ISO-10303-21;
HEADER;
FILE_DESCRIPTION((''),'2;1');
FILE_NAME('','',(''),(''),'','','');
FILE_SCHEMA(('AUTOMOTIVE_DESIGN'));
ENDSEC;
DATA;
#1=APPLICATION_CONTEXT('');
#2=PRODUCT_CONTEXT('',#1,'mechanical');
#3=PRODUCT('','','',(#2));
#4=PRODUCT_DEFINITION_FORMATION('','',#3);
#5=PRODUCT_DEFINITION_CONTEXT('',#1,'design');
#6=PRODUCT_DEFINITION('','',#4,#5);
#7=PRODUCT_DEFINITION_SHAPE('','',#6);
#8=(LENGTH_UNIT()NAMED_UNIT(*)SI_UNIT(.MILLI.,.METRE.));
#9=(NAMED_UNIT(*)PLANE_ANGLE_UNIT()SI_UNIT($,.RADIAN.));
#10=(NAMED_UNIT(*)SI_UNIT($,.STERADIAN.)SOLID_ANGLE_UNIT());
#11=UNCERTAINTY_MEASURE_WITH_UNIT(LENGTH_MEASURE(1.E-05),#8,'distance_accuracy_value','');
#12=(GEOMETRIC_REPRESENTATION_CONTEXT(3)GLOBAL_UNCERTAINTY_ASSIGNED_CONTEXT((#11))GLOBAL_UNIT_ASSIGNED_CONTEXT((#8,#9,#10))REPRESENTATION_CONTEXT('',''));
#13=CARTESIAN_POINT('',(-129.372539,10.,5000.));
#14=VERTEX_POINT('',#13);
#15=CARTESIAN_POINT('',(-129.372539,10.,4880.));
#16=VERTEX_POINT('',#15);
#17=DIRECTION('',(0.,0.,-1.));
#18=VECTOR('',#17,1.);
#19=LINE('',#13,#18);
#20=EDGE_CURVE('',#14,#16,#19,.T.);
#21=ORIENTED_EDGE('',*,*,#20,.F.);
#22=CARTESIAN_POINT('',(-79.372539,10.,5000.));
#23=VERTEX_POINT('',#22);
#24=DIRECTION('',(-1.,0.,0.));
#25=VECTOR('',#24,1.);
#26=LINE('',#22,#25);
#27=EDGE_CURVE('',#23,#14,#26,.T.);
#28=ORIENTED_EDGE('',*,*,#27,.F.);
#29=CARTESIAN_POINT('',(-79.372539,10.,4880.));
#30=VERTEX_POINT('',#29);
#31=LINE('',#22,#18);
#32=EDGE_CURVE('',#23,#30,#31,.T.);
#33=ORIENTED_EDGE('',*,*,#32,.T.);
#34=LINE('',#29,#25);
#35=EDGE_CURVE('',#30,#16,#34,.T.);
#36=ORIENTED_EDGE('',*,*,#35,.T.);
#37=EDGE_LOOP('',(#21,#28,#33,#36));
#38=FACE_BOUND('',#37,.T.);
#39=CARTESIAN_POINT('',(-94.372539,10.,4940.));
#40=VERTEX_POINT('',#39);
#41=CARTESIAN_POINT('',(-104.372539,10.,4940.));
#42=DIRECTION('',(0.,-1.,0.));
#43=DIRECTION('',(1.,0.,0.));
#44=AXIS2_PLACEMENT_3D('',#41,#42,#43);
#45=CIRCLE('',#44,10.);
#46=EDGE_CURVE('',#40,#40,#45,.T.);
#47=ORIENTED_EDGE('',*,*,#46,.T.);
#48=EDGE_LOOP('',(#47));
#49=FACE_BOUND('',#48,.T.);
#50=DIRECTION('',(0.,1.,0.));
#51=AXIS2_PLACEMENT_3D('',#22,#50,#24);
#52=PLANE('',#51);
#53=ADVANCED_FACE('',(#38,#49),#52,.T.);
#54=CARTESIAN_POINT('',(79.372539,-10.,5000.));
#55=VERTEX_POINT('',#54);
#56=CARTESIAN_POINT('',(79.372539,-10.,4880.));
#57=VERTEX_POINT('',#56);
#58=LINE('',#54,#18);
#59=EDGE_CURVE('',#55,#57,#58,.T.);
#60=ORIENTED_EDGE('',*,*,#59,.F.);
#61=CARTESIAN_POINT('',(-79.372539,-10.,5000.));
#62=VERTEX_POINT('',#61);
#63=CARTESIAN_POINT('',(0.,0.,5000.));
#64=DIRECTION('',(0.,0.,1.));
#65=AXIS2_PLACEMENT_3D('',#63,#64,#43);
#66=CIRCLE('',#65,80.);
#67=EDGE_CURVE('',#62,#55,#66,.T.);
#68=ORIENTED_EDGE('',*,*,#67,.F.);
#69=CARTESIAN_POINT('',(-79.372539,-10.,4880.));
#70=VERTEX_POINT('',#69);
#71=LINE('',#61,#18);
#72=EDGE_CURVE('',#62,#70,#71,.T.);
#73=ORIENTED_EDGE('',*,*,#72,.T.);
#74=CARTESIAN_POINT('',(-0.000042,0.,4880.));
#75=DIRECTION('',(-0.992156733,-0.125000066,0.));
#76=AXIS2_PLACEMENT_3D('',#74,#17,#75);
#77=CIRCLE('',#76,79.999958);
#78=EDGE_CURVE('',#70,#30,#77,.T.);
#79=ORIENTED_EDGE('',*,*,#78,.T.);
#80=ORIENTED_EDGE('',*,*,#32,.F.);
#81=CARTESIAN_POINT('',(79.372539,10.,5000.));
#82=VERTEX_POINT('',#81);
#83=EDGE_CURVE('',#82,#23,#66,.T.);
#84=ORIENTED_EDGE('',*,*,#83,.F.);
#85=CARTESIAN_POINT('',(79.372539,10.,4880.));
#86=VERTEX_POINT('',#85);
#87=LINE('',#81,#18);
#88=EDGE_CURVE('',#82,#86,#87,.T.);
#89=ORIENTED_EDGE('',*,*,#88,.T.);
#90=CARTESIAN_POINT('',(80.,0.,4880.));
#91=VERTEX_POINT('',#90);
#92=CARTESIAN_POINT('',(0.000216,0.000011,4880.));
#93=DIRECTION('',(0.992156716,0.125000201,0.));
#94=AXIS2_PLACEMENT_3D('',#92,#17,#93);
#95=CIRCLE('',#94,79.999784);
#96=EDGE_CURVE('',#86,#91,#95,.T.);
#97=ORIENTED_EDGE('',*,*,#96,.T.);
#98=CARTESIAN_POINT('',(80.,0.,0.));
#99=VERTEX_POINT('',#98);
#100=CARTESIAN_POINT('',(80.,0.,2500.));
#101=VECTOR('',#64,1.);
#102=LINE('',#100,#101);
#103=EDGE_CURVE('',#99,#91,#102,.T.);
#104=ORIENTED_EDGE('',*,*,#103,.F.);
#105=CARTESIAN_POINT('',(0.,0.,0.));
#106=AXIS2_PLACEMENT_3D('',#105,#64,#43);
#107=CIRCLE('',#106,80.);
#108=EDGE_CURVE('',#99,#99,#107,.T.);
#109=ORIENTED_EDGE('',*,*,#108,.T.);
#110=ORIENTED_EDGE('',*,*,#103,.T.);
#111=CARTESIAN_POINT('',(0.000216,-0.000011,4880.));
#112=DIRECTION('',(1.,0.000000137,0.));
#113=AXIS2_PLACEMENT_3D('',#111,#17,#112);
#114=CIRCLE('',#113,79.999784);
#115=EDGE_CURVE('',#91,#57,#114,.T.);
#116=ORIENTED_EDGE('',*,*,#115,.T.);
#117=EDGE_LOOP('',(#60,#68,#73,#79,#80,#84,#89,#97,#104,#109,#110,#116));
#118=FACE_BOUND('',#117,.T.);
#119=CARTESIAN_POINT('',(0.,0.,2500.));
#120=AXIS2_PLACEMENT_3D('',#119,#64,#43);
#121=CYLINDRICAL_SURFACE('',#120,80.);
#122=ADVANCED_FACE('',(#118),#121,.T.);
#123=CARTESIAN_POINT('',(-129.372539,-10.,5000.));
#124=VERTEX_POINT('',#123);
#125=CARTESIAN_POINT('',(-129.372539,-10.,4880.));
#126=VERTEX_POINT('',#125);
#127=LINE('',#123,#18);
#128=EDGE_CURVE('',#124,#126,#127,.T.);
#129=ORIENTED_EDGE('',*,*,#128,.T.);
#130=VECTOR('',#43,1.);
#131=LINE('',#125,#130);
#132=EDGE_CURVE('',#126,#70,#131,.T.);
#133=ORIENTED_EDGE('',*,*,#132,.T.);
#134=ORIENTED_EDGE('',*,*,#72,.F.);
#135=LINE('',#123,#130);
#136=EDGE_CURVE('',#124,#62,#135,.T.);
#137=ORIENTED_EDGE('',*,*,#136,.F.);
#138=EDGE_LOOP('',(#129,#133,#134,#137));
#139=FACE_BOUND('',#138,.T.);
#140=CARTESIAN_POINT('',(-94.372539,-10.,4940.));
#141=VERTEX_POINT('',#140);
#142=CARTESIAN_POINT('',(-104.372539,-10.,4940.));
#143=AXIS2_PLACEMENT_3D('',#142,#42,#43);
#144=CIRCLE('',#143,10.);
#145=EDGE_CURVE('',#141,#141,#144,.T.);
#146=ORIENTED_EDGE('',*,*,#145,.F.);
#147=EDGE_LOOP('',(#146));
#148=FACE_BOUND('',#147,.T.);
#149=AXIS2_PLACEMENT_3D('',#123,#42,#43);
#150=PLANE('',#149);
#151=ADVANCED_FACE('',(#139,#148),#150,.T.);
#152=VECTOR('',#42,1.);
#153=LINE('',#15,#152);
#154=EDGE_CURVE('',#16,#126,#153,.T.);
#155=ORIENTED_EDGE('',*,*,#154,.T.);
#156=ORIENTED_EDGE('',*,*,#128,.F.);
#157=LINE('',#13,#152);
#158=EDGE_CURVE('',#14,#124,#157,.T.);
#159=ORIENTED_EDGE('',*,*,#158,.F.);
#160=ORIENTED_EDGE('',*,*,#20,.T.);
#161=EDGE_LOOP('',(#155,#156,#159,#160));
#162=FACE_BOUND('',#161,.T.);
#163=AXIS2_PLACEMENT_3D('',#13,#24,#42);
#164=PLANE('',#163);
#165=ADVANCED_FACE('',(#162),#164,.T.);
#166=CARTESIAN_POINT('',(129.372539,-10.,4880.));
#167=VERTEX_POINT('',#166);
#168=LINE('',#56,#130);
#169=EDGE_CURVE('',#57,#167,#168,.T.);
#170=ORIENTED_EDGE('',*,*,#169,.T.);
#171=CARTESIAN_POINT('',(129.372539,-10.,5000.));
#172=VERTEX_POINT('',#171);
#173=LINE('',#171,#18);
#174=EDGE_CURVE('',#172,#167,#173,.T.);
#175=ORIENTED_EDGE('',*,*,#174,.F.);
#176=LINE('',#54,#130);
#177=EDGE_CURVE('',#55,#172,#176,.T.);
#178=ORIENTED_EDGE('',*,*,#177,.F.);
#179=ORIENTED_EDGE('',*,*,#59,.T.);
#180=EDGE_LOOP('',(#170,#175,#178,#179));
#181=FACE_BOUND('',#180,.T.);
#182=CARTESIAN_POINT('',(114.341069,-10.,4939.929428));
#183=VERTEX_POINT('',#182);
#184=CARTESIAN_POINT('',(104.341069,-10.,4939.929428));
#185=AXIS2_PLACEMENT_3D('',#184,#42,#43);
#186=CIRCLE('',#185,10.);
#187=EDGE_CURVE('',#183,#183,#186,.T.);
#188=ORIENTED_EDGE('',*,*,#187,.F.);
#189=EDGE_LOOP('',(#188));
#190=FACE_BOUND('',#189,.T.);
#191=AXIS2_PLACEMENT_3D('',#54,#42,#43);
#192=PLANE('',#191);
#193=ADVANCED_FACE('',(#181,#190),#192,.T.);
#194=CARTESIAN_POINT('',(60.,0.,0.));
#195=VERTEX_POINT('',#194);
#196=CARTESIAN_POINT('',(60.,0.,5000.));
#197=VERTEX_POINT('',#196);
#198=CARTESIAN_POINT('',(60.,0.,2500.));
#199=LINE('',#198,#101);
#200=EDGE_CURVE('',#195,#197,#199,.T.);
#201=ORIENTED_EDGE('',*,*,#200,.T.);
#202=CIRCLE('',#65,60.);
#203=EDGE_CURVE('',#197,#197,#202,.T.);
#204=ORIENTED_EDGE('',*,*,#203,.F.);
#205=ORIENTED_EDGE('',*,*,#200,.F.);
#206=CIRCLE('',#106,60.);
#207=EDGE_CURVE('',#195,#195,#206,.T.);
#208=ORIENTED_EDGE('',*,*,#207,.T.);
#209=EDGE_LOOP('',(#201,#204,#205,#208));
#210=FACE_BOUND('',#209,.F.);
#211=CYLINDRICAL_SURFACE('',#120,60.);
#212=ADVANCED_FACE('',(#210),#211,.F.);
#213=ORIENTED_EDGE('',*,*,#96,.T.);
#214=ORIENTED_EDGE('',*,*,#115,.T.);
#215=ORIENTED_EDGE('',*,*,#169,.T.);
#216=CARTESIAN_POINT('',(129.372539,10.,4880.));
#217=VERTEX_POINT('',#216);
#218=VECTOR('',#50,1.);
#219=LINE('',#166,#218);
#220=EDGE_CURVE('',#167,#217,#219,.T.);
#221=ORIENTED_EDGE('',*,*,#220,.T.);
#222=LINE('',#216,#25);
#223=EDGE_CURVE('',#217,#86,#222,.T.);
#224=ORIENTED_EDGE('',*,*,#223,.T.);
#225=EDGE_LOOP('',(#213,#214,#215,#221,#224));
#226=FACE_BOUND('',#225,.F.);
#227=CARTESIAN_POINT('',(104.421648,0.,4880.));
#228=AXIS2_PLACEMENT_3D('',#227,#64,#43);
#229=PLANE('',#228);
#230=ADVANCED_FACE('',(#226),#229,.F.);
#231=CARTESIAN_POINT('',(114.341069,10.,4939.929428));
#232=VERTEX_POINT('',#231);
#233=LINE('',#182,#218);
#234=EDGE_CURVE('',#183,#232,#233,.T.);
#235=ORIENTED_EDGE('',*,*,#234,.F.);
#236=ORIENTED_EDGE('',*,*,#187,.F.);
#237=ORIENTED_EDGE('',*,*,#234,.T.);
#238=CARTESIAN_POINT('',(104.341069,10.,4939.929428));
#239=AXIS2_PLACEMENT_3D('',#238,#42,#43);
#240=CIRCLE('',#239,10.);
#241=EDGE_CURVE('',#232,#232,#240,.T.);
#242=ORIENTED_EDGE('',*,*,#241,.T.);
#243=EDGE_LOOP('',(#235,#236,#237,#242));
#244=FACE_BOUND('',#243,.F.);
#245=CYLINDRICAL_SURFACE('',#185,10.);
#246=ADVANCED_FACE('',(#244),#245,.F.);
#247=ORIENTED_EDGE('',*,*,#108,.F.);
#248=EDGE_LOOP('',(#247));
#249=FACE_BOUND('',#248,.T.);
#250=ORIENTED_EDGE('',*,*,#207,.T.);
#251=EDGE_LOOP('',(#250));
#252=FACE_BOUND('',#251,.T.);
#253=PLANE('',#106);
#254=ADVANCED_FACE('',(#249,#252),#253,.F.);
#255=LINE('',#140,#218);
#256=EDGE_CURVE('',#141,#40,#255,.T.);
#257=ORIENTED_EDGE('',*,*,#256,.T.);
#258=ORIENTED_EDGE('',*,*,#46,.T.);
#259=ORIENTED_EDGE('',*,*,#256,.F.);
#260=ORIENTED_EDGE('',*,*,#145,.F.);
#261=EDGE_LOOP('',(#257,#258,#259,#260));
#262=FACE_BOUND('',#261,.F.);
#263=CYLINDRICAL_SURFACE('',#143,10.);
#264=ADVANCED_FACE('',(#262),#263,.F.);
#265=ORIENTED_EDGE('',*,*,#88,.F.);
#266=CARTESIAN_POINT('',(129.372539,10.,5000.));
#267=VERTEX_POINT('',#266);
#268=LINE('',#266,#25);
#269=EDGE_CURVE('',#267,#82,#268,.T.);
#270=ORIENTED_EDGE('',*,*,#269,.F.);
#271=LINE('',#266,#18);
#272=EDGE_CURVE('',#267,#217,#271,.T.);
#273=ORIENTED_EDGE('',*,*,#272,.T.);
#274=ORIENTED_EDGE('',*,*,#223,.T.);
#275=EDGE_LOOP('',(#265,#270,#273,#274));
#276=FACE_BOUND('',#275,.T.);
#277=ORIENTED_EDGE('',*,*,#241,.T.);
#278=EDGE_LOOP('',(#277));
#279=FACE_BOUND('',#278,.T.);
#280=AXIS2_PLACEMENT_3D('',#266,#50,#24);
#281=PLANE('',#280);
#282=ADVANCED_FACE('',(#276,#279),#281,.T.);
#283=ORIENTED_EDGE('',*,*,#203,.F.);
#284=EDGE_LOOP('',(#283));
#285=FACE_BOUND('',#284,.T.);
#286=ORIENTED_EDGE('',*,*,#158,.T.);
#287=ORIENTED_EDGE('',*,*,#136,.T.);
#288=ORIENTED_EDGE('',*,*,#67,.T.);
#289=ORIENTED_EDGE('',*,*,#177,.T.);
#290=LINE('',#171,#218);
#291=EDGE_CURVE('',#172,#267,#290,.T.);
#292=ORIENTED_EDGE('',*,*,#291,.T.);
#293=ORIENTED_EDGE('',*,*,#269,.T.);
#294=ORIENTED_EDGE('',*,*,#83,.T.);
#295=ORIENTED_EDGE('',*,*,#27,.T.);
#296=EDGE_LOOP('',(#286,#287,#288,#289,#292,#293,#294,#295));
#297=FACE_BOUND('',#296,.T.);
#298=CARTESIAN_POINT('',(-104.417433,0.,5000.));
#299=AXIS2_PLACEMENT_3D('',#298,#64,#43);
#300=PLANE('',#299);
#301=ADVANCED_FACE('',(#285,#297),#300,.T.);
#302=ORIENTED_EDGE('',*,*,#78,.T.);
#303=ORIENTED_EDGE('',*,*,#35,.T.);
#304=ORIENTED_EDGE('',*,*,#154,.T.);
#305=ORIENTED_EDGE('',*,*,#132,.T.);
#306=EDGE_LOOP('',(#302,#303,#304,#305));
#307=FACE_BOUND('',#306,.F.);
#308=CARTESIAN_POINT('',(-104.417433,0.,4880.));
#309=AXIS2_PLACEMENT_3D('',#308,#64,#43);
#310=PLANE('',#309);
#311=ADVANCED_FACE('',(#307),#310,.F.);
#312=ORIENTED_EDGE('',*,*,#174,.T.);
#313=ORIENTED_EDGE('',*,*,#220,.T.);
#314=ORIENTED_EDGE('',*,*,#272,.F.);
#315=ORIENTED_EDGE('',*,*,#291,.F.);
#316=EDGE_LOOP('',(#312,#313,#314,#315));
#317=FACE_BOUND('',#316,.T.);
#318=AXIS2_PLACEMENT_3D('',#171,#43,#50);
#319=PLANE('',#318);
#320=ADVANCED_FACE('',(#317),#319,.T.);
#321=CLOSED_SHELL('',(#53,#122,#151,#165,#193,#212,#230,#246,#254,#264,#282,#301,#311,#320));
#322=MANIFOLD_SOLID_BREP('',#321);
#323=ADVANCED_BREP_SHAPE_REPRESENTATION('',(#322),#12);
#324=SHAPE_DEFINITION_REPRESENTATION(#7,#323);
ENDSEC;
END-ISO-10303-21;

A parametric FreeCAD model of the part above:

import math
import FreeCAD as App
import Part
import Sketcher

V = App.Vector
Q = App.Units.Quantity

doc = App.newDocument("Part")
body = doc.addObject("PartDesign::Body", "Body")

# Sketch on XZ plane
sketch1 = body.newObject("Sketcher::SketchObject", "Sketch")
sketch1.AttachmentSupport = (doc.getObject("XZ_Plane"), [""])
sketch1.MapMode = "FlatFace"
sketch1.addGeometry([
    Part.LineSegment(V(60, 5000, 0), V(60, 0, 0)),
    Part.LineSegment(V(60, 0, 0), V(80, 0, 0)),
    Part.LineSegment(V(80, 0, 0), V(80, 5000, 0)),
    Part.LineSegment(V(80, 5000, 0), V(60, 5000, 0)),
], False)
sketch1.addConstraint([
    Sketcher.Constraint("Coincident", 0, 2, 1, 1),
    Sketcher.Constraint("Coincident", 1, 2, 2, 1),
    Sketcher.Constraint("Coincident", 2, 2, 3, 1),
    Sketcher.Constraint("Coincident", 3, 2, 0, 1),
    Sketcher.Constraint("Vertical", 0),
    Sketcher.Constraint("Horizontal", 1),
    Sketcher.Constraint("Vertical", 2),
    Sketcher.Constraint("Horizontal", 3),
    Sketcher.Constraint("PointOnObject", 0, 2, -1),
    Sketcher.Constraint("DistanceX", 1, 1, 1, 2, Q("20 mm")),
    Sketcher.Constraint("DistanceY", 0, 2, 0, 1, Q("5000 mm")),
    Sketcher.Constraint("DistanceX", -1, 1, 0, 2, Q("60 mm")),
])
revolution = body.newObject("PartDesign::Revolution", "Revolution")
revolution.Profile = sketch1
revolution.ReferenceAxis = (sketch1, ["V_Axis"])
revolution.Angle = 360

# Sketch on XY plane
sketch2 = body.newObject("Sketcher::SketchObject", "Sketch001")
sketch2.AttachmentSupport = (doc.getObject("XY_Plane"), [""])
sketch2.MapMode = "FlatFace"
sketch2.AttachmentOffset = App.Placement(V(0, 0, 5000), App.Rotation())
sketch2.addGeometry([
    Part.ArcOfCircle(Part.Circle(V(-0.000042, 0, 0), V(0, 0, 1), 79.999958), math.radians(172.81924), math.radians(187.18076)),  # 0
    Part.LineSegment(V(-79.372539, 10, 0), V(-129.372539, 10, 0)),  # 1
    Part.LineSegment(V(-129.372539, 10, 0), V(-129.372539, -10, 0)),  # 2
    Part.LineSegment(V(-129.372539, -10, 0), V(-79.372539, -10, 0)),  # 3
    Part.LineSegment(V(129.372539, 10, 0), V(79.372539, 10, 0)),  # 4
    Part.ArcOfCircle(Part.Circle(V(0.000216, 0.000011, 0), V(0, 0, 1), 79.999784), math.radians(-0.000008), math.radians(7.180767)),  # 5
    Part.ArcOfCircle(Part.Circle(V(0.000216, -0.000011, 0), V(0, 0, 1), 79.999784), math.radians(-7.180767), math.radians(0.000008)),  # 6
    Part.LineSegment(V(79.372539, -10, 0), V(129.372539, -10, 0)),  # 7
    Part.LineSegment(V(129.372539, -10, 0), V(129.372539, 10, 0)),  # 8
], False)
sketch2.addConstraint([
    Sketcher.Constraint("Coincident", 0, 1, 1, 1),
    Sketcher.Constraint("Coincident", 1, 2, 2, 1),
    Sketcher.Constraint("Coincident", 2, 2, 3, 1),
    Sketcher.Constraint("Coincident", 3, 2, 0, 2),
    Sketcher.Constraint("Coincident", 4, 2, 5, 2),
    Sketcher.Constraint("Tangent", 5, 1, 6, 2),
    Sketcher.Constraint("Coincident", 6, 1, 7, 1),
    Sketcher.Constraint("Coincident", 7, 2, 8, 1),
    Sketcher.Constraint("Coincident", 8, 2, 4, 1),
    Sketcher.Constraint("Horizontal", 1),
    Sketcher.Constraint("Vertical", 2),
    Sketcher.Constraint("Horizontal", 3),
    Sketcher.Constraint("Horizontal", 4),
    Sketcher.Constraint("Horizontal", 7),
    Sketcher.Constraint("Vertical", 8),
    Sketcher.Constraint("Equal", 5, 6),
    Sketcher.Constraint("Symmetric", 3, 2, 4, 2, -1, 1),
    Sketcher.Constraint("Symmetric", 0, 1, 6, 1, -1, 1),
    Sketcher.Constraint("Symmetric", 0, 1, 4, 2, -2),
    Sketcher.Constraint("PointOnObject", 5, 1, -1),
    Sketcher.Constraint("Equal", 3, 4),
    Sketcher.Constraint("DistanceX", 1, 2, 1, 1, Q("50 mm")),
    Sketcher.Constraint("DistanceY", 2, 2, 2, 1, Q("20 mm")),
    Sketcher.Constraint("DistanceX", -1, 1, 5, 1, Q("80 mm")),
    Sketcher.Constraint("Radius", 0, Q("79.999958 mm")),
    Sketcher.Constraint("Radius", 5, Q("79.999784 mm")),
])
pad1 = body.newObject("PartDesign::Pad", "Pad")
pad1.Profile = sketch2
pad1.Length = 120
pad1.Reversed = True

# Sketch on XZ plane
sketch3 = body.newObject("Sketcher::SketchObject", "Sketch002")
sketch3.AttachmentSupport = (doc.getObject("XZ_Plane"), [""])
sketch3.MapMode = "FlatFace"
sketch3.AttachmentOffset = App.Placement(V(0, 0, 10), App.Rotation())
sketch3.addGeometry([
    Part.Circle(V(-104.372539, 4940, 0), V(0, 0, 1), 10),
    Part.Circle(V(104.341069, 4939.929428, 0), V(0, 0, 1), 10),
], False)
sketch3.addConstraint([
    Sketcher.Constraint("Equal", 0, 1),
    Sketcher.Constraint("Diameter", 0, Q("20 mm")),
    Sketcher.Constraint("DistanceY", -1, 1, 0, 3, Q("4940 mm")),
    Sketcher.Constraint("DistanceX", 0, 3, -1, 1, Q("104.372539 mm")),
    Sketcher.Constraint("DistanceX", -1, 1, 1, 3, Q("104.341069 mm")),
    Sketcher.Constraint("DistanceY", -1, 1, 1, 3, Q("4939.929428 mm")),
])
pocket1 = body.newObject("PartDesign::Pocket", "Pocket")
pocket1.Profile = sketch3
pocket1.Length = 25

doc.recompute()
